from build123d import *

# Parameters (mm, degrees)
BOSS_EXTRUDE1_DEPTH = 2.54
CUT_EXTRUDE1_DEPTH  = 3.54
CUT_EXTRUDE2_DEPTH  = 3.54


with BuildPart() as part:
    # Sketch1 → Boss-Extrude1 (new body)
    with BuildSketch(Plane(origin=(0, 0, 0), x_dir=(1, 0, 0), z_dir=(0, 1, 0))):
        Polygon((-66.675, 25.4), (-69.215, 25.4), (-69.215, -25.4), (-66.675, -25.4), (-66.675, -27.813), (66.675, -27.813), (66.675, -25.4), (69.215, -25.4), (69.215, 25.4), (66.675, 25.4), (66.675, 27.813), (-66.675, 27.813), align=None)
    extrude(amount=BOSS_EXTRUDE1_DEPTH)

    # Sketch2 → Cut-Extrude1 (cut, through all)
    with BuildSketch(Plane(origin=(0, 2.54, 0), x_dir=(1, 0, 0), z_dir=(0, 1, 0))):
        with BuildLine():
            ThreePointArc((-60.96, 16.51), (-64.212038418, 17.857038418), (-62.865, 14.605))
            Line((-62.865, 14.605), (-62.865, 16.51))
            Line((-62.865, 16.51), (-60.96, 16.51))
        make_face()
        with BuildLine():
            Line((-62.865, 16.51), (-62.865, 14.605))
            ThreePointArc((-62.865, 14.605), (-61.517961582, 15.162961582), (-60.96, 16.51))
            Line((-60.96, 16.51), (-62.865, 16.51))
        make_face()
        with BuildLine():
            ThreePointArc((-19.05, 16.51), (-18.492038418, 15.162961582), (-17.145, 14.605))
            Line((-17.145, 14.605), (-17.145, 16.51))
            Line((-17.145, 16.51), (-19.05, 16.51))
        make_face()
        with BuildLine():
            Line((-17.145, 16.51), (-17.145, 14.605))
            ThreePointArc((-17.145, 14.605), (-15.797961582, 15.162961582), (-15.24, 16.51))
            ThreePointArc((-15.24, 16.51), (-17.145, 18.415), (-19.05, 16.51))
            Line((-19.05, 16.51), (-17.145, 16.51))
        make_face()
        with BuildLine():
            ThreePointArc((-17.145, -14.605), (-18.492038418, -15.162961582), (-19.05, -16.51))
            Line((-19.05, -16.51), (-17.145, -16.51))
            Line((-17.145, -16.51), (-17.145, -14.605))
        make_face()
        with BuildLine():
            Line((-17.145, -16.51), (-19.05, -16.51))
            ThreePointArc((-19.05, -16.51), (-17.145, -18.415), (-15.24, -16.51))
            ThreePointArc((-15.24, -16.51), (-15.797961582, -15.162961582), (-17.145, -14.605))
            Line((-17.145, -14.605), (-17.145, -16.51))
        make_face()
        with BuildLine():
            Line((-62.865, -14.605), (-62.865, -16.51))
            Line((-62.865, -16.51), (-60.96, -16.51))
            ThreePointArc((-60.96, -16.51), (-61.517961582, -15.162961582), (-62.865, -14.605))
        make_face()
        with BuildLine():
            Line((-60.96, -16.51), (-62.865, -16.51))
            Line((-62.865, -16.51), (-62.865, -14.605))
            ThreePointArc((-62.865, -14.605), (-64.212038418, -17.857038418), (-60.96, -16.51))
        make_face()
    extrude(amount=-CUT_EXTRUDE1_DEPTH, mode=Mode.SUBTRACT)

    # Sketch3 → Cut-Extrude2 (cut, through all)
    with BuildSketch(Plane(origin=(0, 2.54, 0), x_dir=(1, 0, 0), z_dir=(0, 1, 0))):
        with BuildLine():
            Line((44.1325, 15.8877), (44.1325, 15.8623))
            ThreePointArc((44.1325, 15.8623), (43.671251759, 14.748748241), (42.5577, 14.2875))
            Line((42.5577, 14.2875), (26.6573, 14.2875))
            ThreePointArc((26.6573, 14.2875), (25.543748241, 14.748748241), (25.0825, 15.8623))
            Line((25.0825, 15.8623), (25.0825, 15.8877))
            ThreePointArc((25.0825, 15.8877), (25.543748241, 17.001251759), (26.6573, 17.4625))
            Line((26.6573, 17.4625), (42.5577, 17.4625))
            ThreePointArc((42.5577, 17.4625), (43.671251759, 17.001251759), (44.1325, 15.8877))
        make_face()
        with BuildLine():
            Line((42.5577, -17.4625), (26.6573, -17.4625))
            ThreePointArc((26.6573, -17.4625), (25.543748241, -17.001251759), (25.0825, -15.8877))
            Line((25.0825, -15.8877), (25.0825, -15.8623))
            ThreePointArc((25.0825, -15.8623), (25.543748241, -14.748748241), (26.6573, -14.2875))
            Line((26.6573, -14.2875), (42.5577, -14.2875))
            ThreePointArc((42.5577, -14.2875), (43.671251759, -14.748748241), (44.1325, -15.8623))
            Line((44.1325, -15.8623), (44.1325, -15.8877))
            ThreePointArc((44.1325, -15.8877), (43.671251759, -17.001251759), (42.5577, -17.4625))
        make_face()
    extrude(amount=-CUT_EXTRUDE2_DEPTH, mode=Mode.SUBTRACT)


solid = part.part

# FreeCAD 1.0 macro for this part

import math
import FreeCAD as App
import Part
import Sketcher
from FreeCAD import Vector
Q = App.Units.Quantity

doc = App.newDocument("Part")
body = doc.addObject("PartDesign::Body", "Body")

# Sketch on XZ plane
sketch1 = doc.addObject("Sketcher::SketchObject", "Sketch")
body.addObject(sketch1)
sketch1.AttachmentSupport = (doc.XZ_Plane, [""])
sketch1.MapMode = "FlatFace"
sketch1.addGeometry([
    Part.LineSegment(Vector(-66.7, -25.4, 0), Vector(-69.2, -25.4, 0)),  # 0
    Part.LineSegment(Vector(-69.2, -25.4, 0), Vector(-69.2, 25.4, 0)),  # 1
    Part.LineSegment(Vector(-69.2, 25.4, 0), Vector(-66.7, 25.4, 0)),  # 2
    Part.LineSegment(Vector(-66.7, 25.4, 0), Vector(-66.7, 27.8, 0)),  # 3
    Part.LineSegment(Vector(-66.7, 27.8, 0), Vector(66.7, 27.8, 0)),  # 4
    Part.LineSegment(Vector(66.7, 27.8, 0), Vector(66.7, 25.4, 0)),  # 5
    Part.LineSegment(Vector(66.7, 25.4, 0), Vector(69.2, 25.4, 0)),  # 6
    Part.LineSegment(Vector(69.2, 25.4, 0), Vector(69.2, -25.4, 0)),  # 7
    Part.LineSegment(Vector(69.2, -25.4, 0), Vector(66.7, -25.4, 0)),  # 8
    Part.LineSegment(Vector(66.7, -25.4, 0), Vector(66.7, -27.8, 0)),  # 9
    Part.LineSegment(Vector(66.7, -27.8, 0), Vector(-66.7, -27.8, 0)),  # 10
    Part.LineSegment(Vector(-66.7, -27.8, 0), Vector(-66.7, -25.4, 0)),  # 11
], False)
sketch1.addConstraint([
    Sketcher.Constraint("Coincident", 0, 2, 1, 1),
    Sketcher.Constraint("Coincident", 1, 2, 2, 1),
    Sketcher.Constraint("Coincident", 2, 2, 3, 1),
    Sketcher.Constraint("Coincident", 3, 2, 4, 1),
    Sketcher.Constraint("Coincident", 4, 2, 5, 1),
    Sketcher.Constraint("Coincident", 5, 2, 6, 1),
    Sketcher.Constraint("Coincident", 6, 2, 7, 1),
    Sketcher.Constraint("Coincident", 7, 2, 8, 1),
    Sketcher.Constraint("Coincident", 8, 2, 9, 1),
    Sketcher.Constraint("Coincident", 9, 2, 10, 1),
    Sketcher.Constraint("Coincident", 10, 2, 11, 1),
    Sketcher.Constraint("Coincident", 11, 2, 0, 1),
    Sketcher.Constraint("Horizontal", 0),
    Sketcher.Constraint("Vertical", 1),
    Sketcher.Constraint("Horizontal", 2),
    Sketcher.Constraint("Vertical", 3),
    Sketcher.Constraint("Horizontal", 4),
    Sketcher.Constraint("Vertical", 5),
    Sketcher.Constraint("Horizontal", 6),
    Sketcher.Constraint("Vertical", 7),
    Sketcher.Constraint("Horizontal", 8),
    Sketcher.Constraint("Vertical", 9),
    Sketcher.Constraint("Horizontal", 10),
    Sketcher.Constraint("Vertical", 11),
    Sketcher.Constraint("Symmetric", 0, 2, 6, 2, -1, 1),
    Sketcher.Constraint("Symmetric", 2, 2, 8, 2, -1, 1),
    Sketcher.Constraint("Symmetric", 4, 2, 10, 2, -1, 1),
    Sketcher.Constraint("Symmetric", 2, 2, 5, 2, -2),
    Sketcher.Constraint("DistanceY", 1, 1, 1, 2, Q("2 in")),
    Sketcher.Constraint("DistanceX", 0, 2, 0, 1, Q("0.1 in")),
    Sketcher.Constraint("DistanceX", 4, 1, 4, 2, Q("5.25 in")),
    Sketcher.Constraint("DistanceY", 3, 1, 3, 2, Q("0.095 in")),
])
pad1 = doc.addObject("PartDesign::Pad", "Pad")
body.addObject(pad1)
pad1.Profile = sketch1
pad1.Length = Q("0.1 in")
pad1.Reversed = True

# Sketch on XZ plane
sketch2 = doc.addObject("Sketcher::SketchObject", "Sketch001")
body.addObject(sketch2)
sketch2.AttachmentSupport = (doc.XZ_Plane, [""])
sketch2.MapMode = "FlatFace"
sketch2.AttachmentOffset = App.Placement(Vector(0, 0, -0.1 * 25.4), App.Rotation())
sketch2.addGeometry([
    Part.ArcOfCircle(Part.Circle(Vector(-62.9, -16.5, 0), Vector(0, 0, 1), 1.9), math.radians(90), math.radians(360)),  # 0
    Part.ArcOfCircle(Part.Circle(Vector(-62.9, -16.5, 0), Vector(0, 0, 1), 1.9), math.radians(0), math.radians(90)),  # 1
    Part.ArcOfCircle(Part.Circle(Vector(-17.1, -16.5, 0), Vector(0, 0, 1), 1.9), math.radians(90), math.radians(180)),  # 2
    Part.ArcOfCircle(Part.Circle(Vector(-17.1, -16.5, 0), Vector(0, 0, 1), 1.9), math.radians(0), math.radians(90)),  # 3
    Part.ArcOfCircle(Part.Circle(Vector(-17.1, -16.5, 0), Vector(0, 0, 1), 1.9), math.radians(180), math.radians(360)),  # 4
    Part.ArcOfCircle(Part.Circle(Vector(-17.1, 16.5, 0), Vector(0, 0, 1), 1.9), math.radians(-180), math.radians(-90)),  # 5
    Part.ArcOfCircle(Part.Circle(Vector(-17.1, 16.5, 0), Vector(0, 0, 1), 1.9), math.radians(0), math.radians(180)),  # 6
    Part.ArcOfCircle(Part.Circle(Vector(-17.1, 16.5, 0), Vector(0, 0, 1), 1.9), math.radians(-90), math.radians(0)),  # 7
    Part.ArcOfCircle(Part.Circle(Vector(-62.9, 16.5, 0), Vector(0, 0, 1), 1.9), math.radians(-90), math.radians(0)),  # 8
    Part.ArcOfCircle(Part.Circle(Vector(-62.9, 16.5, 0), Vector(0, 0, 1), 1.9), math.radians(0), math.radians(270)),  # 9
], False)
sketch2.addConstraint([
    Sketcher.Constraint("Tangent", 0, 1, 1, 2),
    Sketcher.Constraint("Coincident", 1, 1, 0, 2),
    Sketcher.Constraint("Tangent", 2, 1, 3, 2),
    Sketcher.Constraint("Tangent", 3, 1, 4, 2),
    Sketcher.Constraint("Tangent", 4, 1, 2, 2),
    Sketcher.Constraint("Tangent", 5, 1, 6, 2),
    Sketcher.Constraint("Tangent", 6, 1, 7, 2),
    Sketcher.Constraint("Tangent", 7, 1, 5, 2),
    Sketcher.Constraint("Tangent", 8, 1, 9, 2),
    Sketcher.Constraint("Coincident", 9, 1, 8, 2),
    Sketcher.Constraint("Equal", 1, 2),
    Sketcher.Constraint("Equal", 4, 5),
    Sketcher.Constraint("Equal", 7, 8),
    Sketcher.Constraint("Symmetric", 2, 3, 5, 3, -1),
    Sketcher.Constraint("Symmetric", 0, 3, 8, 3, -1),
    Sketcher.Constraint("Horizontal", 1, 3, 2, 3),
    Sketcher.Constraint("Horizontal", 4, 3, 1, 1),
    Sketcher.Constraint("Horizontal", 1, 1, 3, 1),
    Sketcher.Constraint("Horizontal", 3, 1, 4, 1),
    Sketcher.Constraint("Horizontal", 9, 3, 5, 1),
    Sketcher.Constraint("Horizontal", 5, 1, 6, 1),
    Sketcher.Constraint("Horizontal", 6, 1, 9, 1),
    Sketcher.Constraint("Vertical", 9, 3, 0, 1),
    Sketcher.Constraint("Vertical", 7, 3, 2, 1),
    Sketcher.Constraint("Vertical", 2, 1, 7, 1),
    Sketcher.Constraint("Vertical", 0, 1, 8, 1),
    Sketcher.Constraint("Radius", 0, Q("0.075 in")),
    Sketcher.Constraint("DistanceX", 1, 1, -1, 1, Q("2.4 in")),
    Sketcher.Constraint("DistanceX", 3, 1, -1, 1, Q("0.6 in")),
    Sketcher.Constraint("DistanceY", 4, 3, 5, 3, Q("1.3 in")),
])
pocket1 = doc.addObject("PartDesign::Pocket", "Pocket")
body.addObject(pocket1)
pocket1.Profile = sketch2
pocket1.Type = "ThroughAll"
pocket1.Reversed = True

# Sketch on XZ plane
sketch3 = doc.addObject("Sketcher::SketchObject", "Sketch002")
body.addObject(sketch3)
sketch3.AttachmentSupport = (doc.XZ_Plane, [""])
sketch3.MapMode = "FlatFace"
sketch3.AttachmentOffset = App.Placement(Vector(0, 0, -0.1 * 25.4), App.Rotation())
sketch3.addGeometry([
    Part.LineSegment(Vector(44.133, -15.862, 0), Vector(44.133, -15.888, 0)),  # 0
    Part.ArcOfCircle(Part.Circle(Vector(42.558, -15.888, 0), Vector(0, 0, 1), 1.575), math.radians(-90), math.radians(0)),  # 1
    Part.LineSegment(Vector(42.558, -17.462, 0), Vector(26.657, -17.462, 0)),  # 2
    Part.ArcOfCircle(Part.Circle(Vector(26.657, -15.888, 0), Vector(0, 0, 1), 1.575), math.radians(180), math.radians(270)),  # 3
    Part.LineSegment(Vector(25.082, -15.888, 0), Vector(25.082, -15.862, 0)),  # 4
    Part.ArcOfCircle(Part.Circle(Vector(26.657, -15.862, 0), Vector(0, 0, 1), 1.575), math.radians(90), math.radians(180)),  # 5
    Part.LineSegment(Vector(26.657, -14.287, 0), Vector(42.558, -14.287, 0)),  # 6
    Part.ArcOfCircle(Part.Circle(Vector(42.558, -15.862, 0), Vector(0, 0, 1), 1.575), math.radians(0), math.radians(90)),  # 7
    Part.LineSegment(Vector(26.657, 17.462, 0), Vector(42.558, 17.462, 0)),  # 8
    Part.ArcOfCircle(Part.Circle(Vector(42.558, 15.888, 0), Vector(0, 0, 1), 1.575), math.radians(0), math.radians(90)),  # 9
    Part.LineSegment(Vector(44.133, 15.888, 0), Vector(44.133, 15.862, 0)),  # 10
    Part.ArcOfCircle(Part.Circle(Vector(42.558, 15.862, 0), Vector(0, 0, 1), 1.575), math.radians(-90), math.radians(0)),  # 11
    Part.LineSegment(Vector(42.558, 14.287, 0), Vector(26.657, 14.287, 0)),  # 12
    Part.ArcOfCircle(Part.Circle(Vector(26.657, 15.862, 0), Vector(0, 0, 1), 1.575), math.radians(180), math.radians(270)),  # 13
    Part.LineSegment(Vector(25.082, 15.862, 0), Vector(25.082, 15.888, 0)),  # 14
    Part.ArcOfCircle(Part.Circle(Vector(26.657, 15.888, 0), Vector(0, 0, 1), 1.575), math.radians(90), math.radians(180)),  # 15
], False)
sketch3.addConstraint([
    Sketcher.Constraint("Tangent", 0, 2, 1, 2),
    Sketcher.Constraint("Tangent", 1, 1, 2, 1),
    Sketcher.Constraint("Tangent", 2, 2, 3, 2),
    Sketcher.Constraint("Tangent", 3, 1, 4, 1),
    Sketcher.Constraint("Tangent", 4, 2, 5, 2),
    Sketcher.Constraint("Tangent", 5, 1, 6, 1),
    Sketcher.Constraint("Tangent", 6, 2, 7, 2),
    Sketcher.Constraint("Tangent", 7, 1, 0, 1),
    Sketcher.Constraint("Tangent", 8, 2, 9, 2),
    Sketcher.Constraint("Tangent", 9, 1, 10, 1),
    Sketcher.Constraint("Tangent", 10, 2, 11, 2),
    Sketcher.Constraint("Tangent", 11, 1, 12, 1),
    Sketcher.Constraint("Tangent", 12, 2, 13, 2),
    Sketcher.Constraint("Tangent", 13, 1, 14, 1),
    Sketcher.Constraint("Tangent", 14, 2, 15, 2),
    Sketcher.Constraint("Tangent", 15, 1, 8, 1),
    Sketcher.Constraint("Vertical", 0),
    Sketcher.Constraint("Horizontal", 2),
    Sketcher.Constraint("Vertical", 4),
    Sketcher.Constraint("Horizontal", 6),
    Sketcher.Constraint("Horizontal", 8),
    Sketcher.Constraint("Vertical", 10),
    Sketcher.Constraint("Horizontal", 12),
    Sketcher.Constraint("Vertical", 14),
    Sketcher.Constraint("Equal", 1, 3),
    Sketcher.Constraint("Equal", 3, 5),
    Sketcher.Constraint("Equal", 5, 7),
    Sketcher.Constraint("Equal", 7, 9),
    Sketcher.Constraint("Equal", 9, 11),
    Sketcher.Constraint("Equal", 11, 13),
    Sketcher.Constraint("Equal", 13, 15),
    Sketcher.Constraint("Symmetric", 1, 3, 9, 3, -1),
    Sketcher.Constraint("Symmetric", 5, 3, 13, 3, -1),
    Sketcher.Constraint("Radius", 1, Q("0.062 in")),
    Sketcher.Constraint("DistanceX", 2, 2, 2, 1, Q("0.626 in")),
    Sketcher.Constraint("DistanceY", 0, 2, 0, 1, Q("0.001 in")),
    Sketcher.Constraint("DistanceY", 7, 3, 9, 3, Q("1.25 in")),
    Sketcher.Constraint("DistanceX", -1, 1, 1, 3, Q("1.6755 in")),
])
pocket2 = doc.addObject("PartDesign::Pocket", "Pocket001")
body.addObject(pocket2)
pocket2.Profile = sketch3
pocket2.Type = "ThroughAll"
pocket2.Reversed = True

doc.recompute()
